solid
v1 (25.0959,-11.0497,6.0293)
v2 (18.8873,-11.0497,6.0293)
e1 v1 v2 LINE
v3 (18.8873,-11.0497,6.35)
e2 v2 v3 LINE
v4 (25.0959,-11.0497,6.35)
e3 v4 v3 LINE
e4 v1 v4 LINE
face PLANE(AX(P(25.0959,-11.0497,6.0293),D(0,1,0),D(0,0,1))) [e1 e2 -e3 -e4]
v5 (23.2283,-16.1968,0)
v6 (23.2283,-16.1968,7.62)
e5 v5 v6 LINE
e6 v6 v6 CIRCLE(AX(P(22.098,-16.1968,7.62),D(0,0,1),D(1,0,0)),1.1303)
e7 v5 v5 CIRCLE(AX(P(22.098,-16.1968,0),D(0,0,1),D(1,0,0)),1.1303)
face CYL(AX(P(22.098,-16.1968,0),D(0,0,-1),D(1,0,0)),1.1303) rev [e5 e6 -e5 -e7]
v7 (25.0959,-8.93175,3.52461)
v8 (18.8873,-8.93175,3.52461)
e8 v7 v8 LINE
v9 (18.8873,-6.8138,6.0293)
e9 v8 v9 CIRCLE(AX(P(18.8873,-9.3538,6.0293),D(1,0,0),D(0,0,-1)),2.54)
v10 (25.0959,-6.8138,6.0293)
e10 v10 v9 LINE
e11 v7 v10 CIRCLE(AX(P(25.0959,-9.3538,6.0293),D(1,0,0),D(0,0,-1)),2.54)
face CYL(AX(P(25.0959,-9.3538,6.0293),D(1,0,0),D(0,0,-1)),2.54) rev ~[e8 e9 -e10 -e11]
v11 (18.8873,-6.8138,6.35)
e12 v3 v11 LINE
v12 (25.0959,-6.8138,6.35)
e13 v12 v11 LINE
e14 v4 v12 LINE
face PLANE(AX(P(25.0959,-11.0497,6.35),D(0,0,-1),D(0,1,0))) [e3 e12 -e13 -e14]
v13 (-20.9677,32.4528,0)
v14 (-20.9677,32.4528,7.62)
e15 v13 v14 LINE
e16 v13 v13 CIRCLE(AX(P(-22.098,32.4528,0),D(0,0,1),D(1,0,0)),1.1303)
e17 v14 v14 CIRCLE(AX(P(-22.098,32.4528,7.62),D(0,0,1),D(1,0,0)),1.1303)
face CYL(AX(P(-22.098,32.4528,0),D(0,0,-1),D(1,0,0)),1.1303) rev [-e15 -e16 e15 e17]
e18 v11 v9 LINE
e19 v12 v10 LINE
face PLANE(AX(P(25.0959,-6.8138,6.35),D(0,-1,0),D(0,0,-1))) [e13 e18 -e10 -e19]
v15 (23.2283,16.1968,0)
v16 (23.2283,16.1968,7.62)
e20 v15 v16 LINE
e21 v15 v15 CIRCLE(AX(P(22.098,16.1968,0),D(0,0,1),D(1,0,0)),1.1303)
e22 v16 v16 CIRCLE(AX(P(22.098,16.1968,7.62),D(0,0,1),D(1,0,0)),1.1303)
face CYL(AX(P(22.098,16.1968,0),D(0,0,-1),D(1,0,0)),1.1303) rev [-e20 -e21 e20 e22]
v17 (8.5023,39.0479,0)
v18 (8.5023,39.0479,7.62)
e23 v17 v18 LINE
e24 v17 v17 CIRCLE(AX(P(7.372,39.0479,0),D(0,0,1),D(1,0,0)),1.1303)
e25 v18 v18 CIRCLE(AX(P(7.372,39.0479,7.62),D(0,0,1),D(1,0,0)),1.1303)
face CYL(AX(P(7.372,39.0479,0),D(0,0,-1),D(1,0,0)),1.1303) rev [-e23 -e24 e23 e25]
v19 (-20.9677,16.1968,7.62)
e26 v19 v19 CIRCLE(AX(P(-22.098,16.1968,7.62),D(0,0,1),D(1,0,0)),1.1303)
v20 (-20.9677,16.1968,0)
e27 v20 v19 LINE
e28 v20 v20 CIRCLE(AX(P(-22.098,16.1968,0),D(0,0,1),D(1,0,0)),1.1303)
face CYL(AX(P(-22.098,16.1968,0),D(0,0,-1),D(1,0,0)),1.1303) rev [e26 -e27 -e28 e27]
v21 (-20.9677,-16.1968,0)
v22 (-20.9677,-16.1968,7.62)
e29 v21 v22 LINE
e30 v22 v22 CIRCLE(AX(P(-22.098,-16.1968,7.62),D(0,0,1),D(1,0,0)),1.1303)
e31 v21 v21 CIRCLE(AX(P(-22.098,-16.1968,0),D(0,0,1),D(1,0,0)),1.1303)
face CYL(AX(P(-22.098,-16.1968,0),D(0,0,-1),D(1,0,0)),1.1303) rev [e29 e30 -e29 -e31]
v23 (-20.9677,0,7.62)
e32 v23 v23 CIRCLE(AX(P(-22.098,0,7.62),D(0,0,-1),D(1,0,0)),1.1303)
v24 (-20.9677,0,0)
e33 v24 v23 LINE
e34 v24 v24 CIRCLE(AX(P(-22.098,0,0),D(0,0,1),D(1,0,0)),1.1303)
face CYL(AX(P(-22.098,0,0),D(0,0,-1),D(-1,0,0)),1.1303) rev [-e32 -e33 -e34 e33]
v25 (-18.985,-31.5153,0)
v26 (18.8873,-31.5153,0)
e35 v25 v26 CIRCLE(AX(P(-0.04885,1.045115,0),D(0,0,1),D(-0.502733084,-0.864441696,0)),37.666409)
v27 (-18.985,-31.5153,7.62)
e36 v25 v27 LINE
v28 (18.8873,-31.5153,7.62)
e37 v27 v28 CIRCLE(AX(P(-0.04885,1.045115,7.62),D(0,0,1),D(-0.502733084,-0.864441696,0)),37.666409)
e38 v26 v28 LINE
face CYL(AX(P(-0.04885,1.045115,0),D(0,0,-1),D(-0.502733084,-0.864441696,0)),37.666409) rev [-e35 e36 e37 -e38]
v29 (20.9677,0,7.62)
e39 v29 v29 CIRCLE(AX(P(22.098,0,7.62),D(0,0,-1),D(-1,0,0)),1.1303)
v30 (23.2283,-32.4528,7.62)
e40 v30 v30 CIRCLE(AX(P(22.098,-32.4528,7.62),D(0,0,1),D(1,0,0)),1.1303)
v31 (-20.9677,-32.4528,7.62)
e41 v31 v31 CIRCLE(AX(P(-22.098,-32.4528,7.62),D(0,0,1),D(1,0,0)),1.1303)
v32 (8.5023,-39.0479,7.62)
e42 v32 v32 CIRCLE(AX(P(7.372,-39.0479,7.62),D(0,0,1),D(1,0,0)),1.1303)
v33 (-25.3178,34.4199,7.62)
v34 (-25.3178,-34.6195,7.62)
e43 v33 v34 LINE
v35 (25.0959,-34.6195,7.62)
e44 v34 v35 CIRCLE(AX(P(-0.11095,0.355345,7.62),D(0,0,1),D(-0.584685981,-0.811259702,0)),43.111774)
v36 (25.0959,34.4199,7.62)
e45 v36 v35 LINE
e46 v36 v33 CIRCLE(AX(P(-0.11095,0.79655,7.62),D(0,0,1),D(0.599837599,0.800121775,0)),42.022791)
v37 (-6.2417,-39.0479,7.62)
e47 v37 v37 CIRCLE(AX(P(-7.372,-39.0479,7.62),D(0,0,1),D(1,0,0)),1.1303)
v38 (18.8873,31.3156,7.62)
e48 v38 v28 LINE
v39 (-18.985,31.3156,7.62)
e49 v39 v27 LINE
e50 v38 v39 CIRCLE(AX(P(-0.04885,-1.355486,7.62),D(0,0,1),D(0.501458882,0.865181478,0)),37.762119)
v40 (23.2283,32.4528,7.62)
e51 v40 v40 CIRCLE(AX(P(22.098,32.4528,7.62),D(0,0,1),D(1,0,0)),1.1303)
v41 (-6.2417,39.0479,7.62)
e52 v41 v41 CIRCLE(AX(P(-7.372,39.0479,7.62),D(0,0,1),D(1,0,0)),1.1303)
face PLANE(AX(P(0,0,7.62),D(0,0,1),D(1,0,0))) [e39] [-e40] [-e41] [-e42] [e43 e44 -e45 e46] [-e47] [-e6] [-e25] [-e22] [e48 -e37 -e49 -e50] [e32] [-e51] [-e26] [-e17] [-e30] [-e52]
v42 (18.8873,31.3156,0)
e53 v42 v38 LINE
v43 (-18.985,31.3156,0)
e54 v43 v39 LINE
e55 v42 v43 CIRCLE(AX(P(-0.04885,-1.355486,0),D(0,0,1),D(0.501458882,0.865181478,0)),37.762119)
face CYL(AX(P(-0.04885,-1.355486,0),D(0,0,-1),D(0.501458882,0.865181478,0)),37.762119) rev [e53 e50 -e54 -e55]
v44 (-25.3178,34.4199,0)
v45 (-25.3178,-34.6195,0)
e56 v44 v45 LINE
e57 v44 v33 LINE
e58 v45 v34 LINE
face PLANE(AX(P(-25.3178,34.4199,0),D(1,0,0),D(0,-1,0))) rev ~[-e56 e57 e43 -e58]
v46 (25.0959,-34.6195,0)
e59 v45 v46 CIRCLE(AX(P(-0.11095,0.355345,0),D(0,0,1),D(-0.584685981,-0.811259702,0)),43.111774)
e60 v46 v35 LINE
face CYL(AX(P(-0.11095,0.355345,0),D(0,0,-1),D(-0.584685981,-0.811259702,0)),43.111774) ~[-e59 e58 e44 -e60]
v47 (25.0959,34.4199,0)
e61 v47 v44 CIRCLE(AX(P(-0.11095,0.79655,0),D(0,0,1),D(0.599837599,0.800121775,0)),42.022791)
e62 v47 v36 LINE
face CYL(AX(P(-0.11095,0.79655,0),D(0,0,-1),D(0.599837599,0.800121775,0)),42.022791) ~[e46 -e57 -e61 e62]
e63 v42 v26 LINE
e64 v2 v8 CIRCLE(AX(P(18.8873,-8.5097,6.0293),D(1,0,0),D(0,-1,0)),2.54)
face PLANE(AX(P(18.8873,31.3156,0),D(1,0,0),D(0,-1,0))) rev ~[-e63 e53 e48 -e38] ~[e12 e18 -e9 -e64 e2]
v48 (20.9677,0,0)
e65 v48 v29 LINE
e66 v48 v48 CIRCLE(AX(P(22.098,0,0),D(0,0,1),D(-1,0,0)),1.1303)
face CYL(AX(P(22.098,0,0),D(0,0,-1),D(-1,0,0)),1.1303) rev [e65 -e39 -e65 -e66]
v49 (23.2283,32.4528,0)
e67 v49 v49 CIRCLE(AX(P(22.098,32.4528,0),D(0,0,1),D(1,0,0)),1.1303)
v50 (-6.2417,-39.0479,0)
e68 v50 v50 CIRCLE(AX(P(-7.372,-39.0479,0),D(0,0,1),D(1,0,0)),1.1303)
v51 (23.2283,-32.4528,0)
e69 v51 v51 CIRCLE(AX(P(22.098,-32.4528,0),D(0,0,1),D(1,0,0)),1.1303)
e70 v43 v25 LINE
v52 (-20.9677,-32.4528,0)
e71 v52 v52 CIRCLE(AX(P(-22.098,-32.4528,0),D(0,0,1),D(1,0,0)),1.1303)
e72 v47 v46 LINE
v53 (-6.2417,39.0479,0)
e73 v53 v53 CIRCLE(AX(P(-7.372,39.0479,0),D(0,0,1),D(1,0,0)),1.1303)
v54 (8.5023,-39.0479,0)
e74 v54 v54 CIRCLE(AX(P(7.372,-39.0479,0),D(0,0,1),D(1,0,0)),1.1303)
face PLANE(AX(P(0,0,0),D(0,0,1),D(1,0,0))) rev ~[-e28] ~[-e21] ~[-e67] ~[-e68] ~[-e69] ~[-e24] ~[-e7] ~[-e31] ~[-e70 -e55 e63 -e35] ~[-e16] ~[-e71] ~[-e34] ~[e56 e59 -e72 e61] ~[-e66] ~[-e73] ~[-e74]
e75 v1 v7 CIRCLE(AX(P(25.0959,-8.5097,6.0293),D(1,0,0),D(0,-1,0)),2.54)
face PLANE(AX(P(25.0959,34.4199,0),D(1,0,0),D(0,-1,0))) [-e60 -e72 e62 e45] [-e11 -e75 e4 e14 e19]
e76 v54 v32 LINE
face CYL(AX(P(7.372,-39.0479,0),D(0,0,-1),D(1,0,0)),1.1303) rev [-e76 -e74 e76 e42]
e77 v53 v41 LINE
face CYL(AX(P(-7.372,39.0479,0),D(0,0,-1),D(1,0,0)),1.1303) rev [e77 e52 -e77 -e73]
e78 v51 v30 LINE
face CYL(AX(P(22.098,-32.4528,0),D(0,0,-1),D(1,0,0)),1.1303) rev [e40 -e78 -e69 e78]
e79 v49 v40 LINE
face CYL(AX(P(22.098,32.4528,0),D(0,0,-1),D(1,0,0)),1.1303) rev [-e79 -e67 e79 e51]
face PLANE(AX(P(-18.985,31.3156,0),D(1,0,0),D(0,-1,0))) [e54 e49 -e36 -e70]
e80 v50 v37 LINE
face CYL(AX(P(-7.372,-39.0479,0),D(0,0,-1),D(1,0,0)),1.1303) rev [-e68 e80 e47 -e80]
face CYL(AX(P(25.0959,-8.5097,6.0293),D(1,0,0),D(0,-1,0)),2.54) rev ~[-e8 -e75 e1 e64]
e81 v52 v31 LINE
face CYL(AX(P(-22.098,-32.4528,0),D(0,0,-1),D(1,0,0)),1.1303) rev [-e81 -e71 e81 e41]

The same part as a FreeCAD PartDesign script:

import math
import FreeCAD as App
import Part
import Sketcher
from FreeCAD import Vector
Q = App.Units.Quantity

doc = App.newDocument("Part")
body = doc.addObject("PartDesign::Body", "Body")

# Sketch on XY plane
sketch1 = body.newObject("Sketcher::SketchObject", "Sketch")
sketch1.AttachmentSupport = (doc.getObject("XY_Plane"), [""])
sketch1.MapMode = "FlatFace"
sketch1.addGeometry([
    Part.ArcOfCircle(Part.Circle(Vector(0, 1, 0), Vector(0, 0, 1), 42), math.radians(53), math.radians(127)),  # 0
    Part.LineSegment(Vector(-25, 34, 0), Vector(-25, -35, 0)),  # 1
    Part.ArcOfCircle(Part.Circle(Vector(0, 0, 0), Vector(0, 0, 1), 43), math.radians(-126), math.radians(-54)),  # 2
    Part.LineSegment(Vector(25, -35, 0), Vector(25, 34, 0)),  # 3
    Part.LineSegment(Vector(-19, -32, 0), Vector(-19, 31, 0)),  # 4
    Part.ArcOfCircle(Part.Circle(Vector(0, -1, 0), Vector(0, 0, 1), 38), math.radians(60), math.radians(120)),  # 5
    Part.LineSegment(Vector(19, 31, 0), Vector(19, -32, 0)),  # 6
    Part.ArcOfCircle(Part.Circle(Vector(0, 1, 0), Vector(0, 0, 1), 38), math.radians(-120), math.radians(-60)),  # 7
], False)
sketch1.addConstraint([
    Sketcher.Constraint("Coincident", 0, 2, 1, 1),
    Sketcher.Constraint("Coincident", 1, 2, 2, 1),
    Sketcher.Constraint("Coincident", 2, 2, 3, 1),
    Sketcher.Constraint("Coincident", 3, 2, 0, 1),
    Sketcher.Constraint("Coincident", 4, 2, 5, 2),
    Sketcher.Constraint("Coincident", 5, 1, 6, 1),
    Sketcher.Constraint("Coincident", 6, 2, 7, 2),
    Sketcher.Constraint("Coincident", 7, 1, 4, 1),
    Sketcher.Constraint("Vertical", 1),
    Sketcher.Constraint("Vertical", 3),
    Sketcher.Constraint("Vertical", 4),
    Sketcher.Constraint("Vertical", 6),
    Sketcher.Constraint("Horizontal", 1, 2, 2, 2),
    Sketcher.Constraint("Horizontal", 0, 2, 3, 2),
    Sketcher.Constraint("Horizontal", 4, 2, 5, 1),
    Sketcher.Constraint("Horizontal", 6, 2, 7, 1),
    Sketcher.Constraint("Radius", 5, Q("1.4867 in")),
    Sketcher.Constraint("Radius", 0, 42.0226),
    Sketcher.Constraint("Radius", 2, 43.112),
    Sketcher.Constraint("Radius", 7, 37.6666),
    Sketcher.Constraint("DistanceY", -1, 1, 2, 3, Q("0.014 in")),
    Sketcher.Constraint("DistanceY", 1, 2, 1, 1, 69.0394),
    Sketcher.Constraint("DistanceY", 4, 1, 4, 2, 62.831),
    Sketcher.Constraint("DistanceY", -1, 1, 4, 2, Q("1.2329 in")),
    Sketcher.Constraint("DistanceX", -1, 1, 5, 1, Q("0.7436 in")),
    Sketcher.Constraint("DistanceY", 5, 3, 7, 3, Q("0.0945 in")),
    Sketcher.Constraint("DistanceX", 0, 2, 0, 3, Q("0.9924 in")),
    Sketcher.Constraint("DistanceX", 0, 3, -1, 1, 0.111),
])
pad1 = body.newObject("PartDesign::Pad", "Pad")
pad1.Profile = sketch1
pad1.Length = Q("0.3 in")

# Sketch on XY plane
sketch2 = body.newObject("Sketcher::SketchObject", "Sketch001")
sketch2.AttachmentSupport = (doc.getObject("XY_Plane"), [""])
sketch2.MapMode = "FlatFace"
sketch2.addGeometry([
    Part.Circle(Vector(22.1, 0, 0), Vector(0, 0, 1), 1.1),  # 0
    Part.Circle(Vector(22.1, 32.5, 0), Vector(0, 0, 1), 1.1),  # 1
    Part.Circle(Vector(22.1, 16.2, 0), Vector(0, 0, 1), 1.1),  # 2
    Part.Circle(Vector(7.4, 39, 0), Vector(0, 0, 1), 1.1),  # 3
    Part.Circle(Vector(-22.1, 0, 0), Vector(0, 0, 1), 1.1),  # 4
    Part.Circle(Vector(-22.1, 16.2, 0), Vector(0, 0, 1), 1.1),  # 5
    Part.Circle(Vector(-22.1, 32.5, 0), Vector(0, 0, 1), 1.1),  # 6
    Part.Circle(Vector(-7.4, 39, 0), Vector(0, 0, 1), 1.1),  # 7
    Part.Circle(Vector(-22.1, -16.2, 0), Vector(0, 0, 1), 1.1),  # 8
    Part.Circle(Vector(-22.1, -32.5, 0), Vector(0, 0, 1), 1.1),  # 9
    Part.Circle(Vector(-7.4, -39, 0), Vector(0, 0, 1), 1.1),  # 10
    Part.Circle(Vector(7.4, -39, 0), Vector(0, 0, 1), 1.1),  # 11
    Part.Circle(Vector(22.1, -32.5, 0), Vector(0, 0, 1), 1.1),  # 12
    Part.Circle(Vector(22.1, -16.2, 0), Vector(0, 0, 1), 1.1),  # 13
], False)
sketch2.addConstraint([
    Sketcher.Constraint("Equal", 0, 1),
    Sketcher.Constraint("Equal", 1, 2),
    Sketcher.Constraint("Equal", 2, 3),
    Sketcher.Constraint("Equal", 3, 4),
    Sketcher.Constraint("Equal", 4, 5),
    Sketcher.Constraint("Equal", 5, 6),
    Sketcher.Constraint("Equal", 6, 7),
    Sketcher.Constraint("Equal", 7, 8),
    Sketcher.Constraint("Equal", 8, 9),
    Sketcher.Constraint("Equal", 9, 10),
    Sketcher.Constraint("Equal", 10, 11),
    Sketcher.Constraint("Equal", 11, 12),
    Sketcher.Constraint("Equal", 12, 13),
    Sketcher.Constraint("Symmetric", 0, 3, 4, 3, -1, 1),
    Sketcher.Constraint("Symmetric", 2, 3, 8, 3, -1, 1),
    Sketcher.Constraint("Symmetric", 1, 3, 9, 3, -1, 1),
    Sketcher.Constraint("Symmetric", 3, 3, 10, 3, -1, 1),
    Sketcher.Constraint("Symmetric", 7, 3, 11, 3, -1, 1),
    Sketcher.Constraint("Symmetric", 6, 3, 12, 3, -1, 1),
    Sketcher.Constraint("Symmetric", 5, 3, 13, 3, -1, 1),
    Sketcher.Constraint("Symmetric", 2, 3, 5, 3, -2),
    Sketcher.Constraint("Symmetric", 1, 3, 6, 3, -2),
    Sketcher.Constraint("Symmetric", 3, 3, 7, 3, -2),
    Sketcher.Constraint("PointOnObject", 0, 3, -1),
    Sketcher.Constraint("Vertical", 0, 3, 1, 3),
    Sketcher.Constraint("Vertical", 1, 3, 2, 3),
    Sketcher.Constraint("Diameter", 0, Q("0.089 in")),
    Sketcher.Constraint("DistanceX", -1, 1, 0, 3, Q("0.87 in")),
    Sketcher.Constraint("DistanceY", 2, 3, 1, 3, Q("0.64 in")),
    Sketcher.Constraint("DistanceY", 10, 3, 5, 3, Q("2.175 in")),
    Sketcher.Constraint("DistanceY", -1, 1, 1, 3, 32.4528),
    Sketcher.Constraint("DistanceX", -1, 1, 3, 3, 7.372),
])
pocket1 = body.newObject("PartDesign::Pocket", "Pocket")
pocket1.Profile = sketch2
pocket1.Length = Q("0.3 in")
pocket1.Reversed = True

# Sketch on YZ plane
sketch3 = body.newObject("Sketcher::SketchObject", "Sketch002")
sketch3.AttachmentSupport = (doc.getObject("YZ_Plane"), [""])
sketch3.MapMode = "FlatFace"
sketch3.AttachmentOffset = App.Placement(Vector(0, 0, 25.0959), App.Rotation())
sketch3.addGeometry([
    Part.LineSegment(Vector(-6.81, 6.03, 0), Vector(-6.81, 6.35, 0)),  # 0
    Part.LineSegment(Vector(-6.81, 6.35, 0), Vector(-11.05, 6.35, 0)),  # 1
    Part.LineSegment(Vector(-11.05, 6.35, 0), Vector(-11.05, 6.03, 0)),  # 2
    Part.ArcOfCircle(Part.Circle(Vector(-8.51, 6.03, 0), Vector(0, 0, 1), 2.54), math.radians(180), math.radians(260)),  # 3
    Part.ArcOfCircle(Part.Circle(Vector(-9.35, 6.03, 0), Vector(0, 0, 1), 2.54), math.radians(-80), math.radians(0)),  # 4
], False)
sketch3.addConstraint([
    Sketcher.Constraint("Coincident", 0, 2, 1, 1),
    Sketcher.Constraint("Coincident", 1, 2, 2, 1),
    Sketcher.Constraint("Tangent", 2, 2, 3, 1),
    Sketcher.Constraint("Coincident", 3, 2, 4, 1),
    Sketcher.Constraint("Tangent", 4, 2, 0, 1),
    Sketcher.Constraint("Vertical", 0),
    Sketcher.Constraint("Horizontal", 1),
    Sketcher.Constraint("Vertical", 2),
    Sketcher.Constraint("Equal", 3, 4),
    Sketcher.Constraint("Horizontal", 3, 3, 4, 3),
    Sketcher.Constraint("Radius", 3, Q("0.1 in")),
    Sketcher.Constraint("DistanceY", -1, 1, 0, 2, Q("0.25 in")),
    Sketcher.Constraint("DistanceX", 1, 2, 1, 1, 4.236),
    Sketcher.Constraint("DistanceY", 0, 1, 0, 2, 0.3207),
    Sketcher.Constraint("DistanceX", 3, 3, -1, 1, 8.5097),
])
pocket2 = body.newObject("PartDesign::Pocket", "Pocket001")
pocket2.Profile = sketch3
pocket2.Length = Q("0.5 in")

doc.recompute()
